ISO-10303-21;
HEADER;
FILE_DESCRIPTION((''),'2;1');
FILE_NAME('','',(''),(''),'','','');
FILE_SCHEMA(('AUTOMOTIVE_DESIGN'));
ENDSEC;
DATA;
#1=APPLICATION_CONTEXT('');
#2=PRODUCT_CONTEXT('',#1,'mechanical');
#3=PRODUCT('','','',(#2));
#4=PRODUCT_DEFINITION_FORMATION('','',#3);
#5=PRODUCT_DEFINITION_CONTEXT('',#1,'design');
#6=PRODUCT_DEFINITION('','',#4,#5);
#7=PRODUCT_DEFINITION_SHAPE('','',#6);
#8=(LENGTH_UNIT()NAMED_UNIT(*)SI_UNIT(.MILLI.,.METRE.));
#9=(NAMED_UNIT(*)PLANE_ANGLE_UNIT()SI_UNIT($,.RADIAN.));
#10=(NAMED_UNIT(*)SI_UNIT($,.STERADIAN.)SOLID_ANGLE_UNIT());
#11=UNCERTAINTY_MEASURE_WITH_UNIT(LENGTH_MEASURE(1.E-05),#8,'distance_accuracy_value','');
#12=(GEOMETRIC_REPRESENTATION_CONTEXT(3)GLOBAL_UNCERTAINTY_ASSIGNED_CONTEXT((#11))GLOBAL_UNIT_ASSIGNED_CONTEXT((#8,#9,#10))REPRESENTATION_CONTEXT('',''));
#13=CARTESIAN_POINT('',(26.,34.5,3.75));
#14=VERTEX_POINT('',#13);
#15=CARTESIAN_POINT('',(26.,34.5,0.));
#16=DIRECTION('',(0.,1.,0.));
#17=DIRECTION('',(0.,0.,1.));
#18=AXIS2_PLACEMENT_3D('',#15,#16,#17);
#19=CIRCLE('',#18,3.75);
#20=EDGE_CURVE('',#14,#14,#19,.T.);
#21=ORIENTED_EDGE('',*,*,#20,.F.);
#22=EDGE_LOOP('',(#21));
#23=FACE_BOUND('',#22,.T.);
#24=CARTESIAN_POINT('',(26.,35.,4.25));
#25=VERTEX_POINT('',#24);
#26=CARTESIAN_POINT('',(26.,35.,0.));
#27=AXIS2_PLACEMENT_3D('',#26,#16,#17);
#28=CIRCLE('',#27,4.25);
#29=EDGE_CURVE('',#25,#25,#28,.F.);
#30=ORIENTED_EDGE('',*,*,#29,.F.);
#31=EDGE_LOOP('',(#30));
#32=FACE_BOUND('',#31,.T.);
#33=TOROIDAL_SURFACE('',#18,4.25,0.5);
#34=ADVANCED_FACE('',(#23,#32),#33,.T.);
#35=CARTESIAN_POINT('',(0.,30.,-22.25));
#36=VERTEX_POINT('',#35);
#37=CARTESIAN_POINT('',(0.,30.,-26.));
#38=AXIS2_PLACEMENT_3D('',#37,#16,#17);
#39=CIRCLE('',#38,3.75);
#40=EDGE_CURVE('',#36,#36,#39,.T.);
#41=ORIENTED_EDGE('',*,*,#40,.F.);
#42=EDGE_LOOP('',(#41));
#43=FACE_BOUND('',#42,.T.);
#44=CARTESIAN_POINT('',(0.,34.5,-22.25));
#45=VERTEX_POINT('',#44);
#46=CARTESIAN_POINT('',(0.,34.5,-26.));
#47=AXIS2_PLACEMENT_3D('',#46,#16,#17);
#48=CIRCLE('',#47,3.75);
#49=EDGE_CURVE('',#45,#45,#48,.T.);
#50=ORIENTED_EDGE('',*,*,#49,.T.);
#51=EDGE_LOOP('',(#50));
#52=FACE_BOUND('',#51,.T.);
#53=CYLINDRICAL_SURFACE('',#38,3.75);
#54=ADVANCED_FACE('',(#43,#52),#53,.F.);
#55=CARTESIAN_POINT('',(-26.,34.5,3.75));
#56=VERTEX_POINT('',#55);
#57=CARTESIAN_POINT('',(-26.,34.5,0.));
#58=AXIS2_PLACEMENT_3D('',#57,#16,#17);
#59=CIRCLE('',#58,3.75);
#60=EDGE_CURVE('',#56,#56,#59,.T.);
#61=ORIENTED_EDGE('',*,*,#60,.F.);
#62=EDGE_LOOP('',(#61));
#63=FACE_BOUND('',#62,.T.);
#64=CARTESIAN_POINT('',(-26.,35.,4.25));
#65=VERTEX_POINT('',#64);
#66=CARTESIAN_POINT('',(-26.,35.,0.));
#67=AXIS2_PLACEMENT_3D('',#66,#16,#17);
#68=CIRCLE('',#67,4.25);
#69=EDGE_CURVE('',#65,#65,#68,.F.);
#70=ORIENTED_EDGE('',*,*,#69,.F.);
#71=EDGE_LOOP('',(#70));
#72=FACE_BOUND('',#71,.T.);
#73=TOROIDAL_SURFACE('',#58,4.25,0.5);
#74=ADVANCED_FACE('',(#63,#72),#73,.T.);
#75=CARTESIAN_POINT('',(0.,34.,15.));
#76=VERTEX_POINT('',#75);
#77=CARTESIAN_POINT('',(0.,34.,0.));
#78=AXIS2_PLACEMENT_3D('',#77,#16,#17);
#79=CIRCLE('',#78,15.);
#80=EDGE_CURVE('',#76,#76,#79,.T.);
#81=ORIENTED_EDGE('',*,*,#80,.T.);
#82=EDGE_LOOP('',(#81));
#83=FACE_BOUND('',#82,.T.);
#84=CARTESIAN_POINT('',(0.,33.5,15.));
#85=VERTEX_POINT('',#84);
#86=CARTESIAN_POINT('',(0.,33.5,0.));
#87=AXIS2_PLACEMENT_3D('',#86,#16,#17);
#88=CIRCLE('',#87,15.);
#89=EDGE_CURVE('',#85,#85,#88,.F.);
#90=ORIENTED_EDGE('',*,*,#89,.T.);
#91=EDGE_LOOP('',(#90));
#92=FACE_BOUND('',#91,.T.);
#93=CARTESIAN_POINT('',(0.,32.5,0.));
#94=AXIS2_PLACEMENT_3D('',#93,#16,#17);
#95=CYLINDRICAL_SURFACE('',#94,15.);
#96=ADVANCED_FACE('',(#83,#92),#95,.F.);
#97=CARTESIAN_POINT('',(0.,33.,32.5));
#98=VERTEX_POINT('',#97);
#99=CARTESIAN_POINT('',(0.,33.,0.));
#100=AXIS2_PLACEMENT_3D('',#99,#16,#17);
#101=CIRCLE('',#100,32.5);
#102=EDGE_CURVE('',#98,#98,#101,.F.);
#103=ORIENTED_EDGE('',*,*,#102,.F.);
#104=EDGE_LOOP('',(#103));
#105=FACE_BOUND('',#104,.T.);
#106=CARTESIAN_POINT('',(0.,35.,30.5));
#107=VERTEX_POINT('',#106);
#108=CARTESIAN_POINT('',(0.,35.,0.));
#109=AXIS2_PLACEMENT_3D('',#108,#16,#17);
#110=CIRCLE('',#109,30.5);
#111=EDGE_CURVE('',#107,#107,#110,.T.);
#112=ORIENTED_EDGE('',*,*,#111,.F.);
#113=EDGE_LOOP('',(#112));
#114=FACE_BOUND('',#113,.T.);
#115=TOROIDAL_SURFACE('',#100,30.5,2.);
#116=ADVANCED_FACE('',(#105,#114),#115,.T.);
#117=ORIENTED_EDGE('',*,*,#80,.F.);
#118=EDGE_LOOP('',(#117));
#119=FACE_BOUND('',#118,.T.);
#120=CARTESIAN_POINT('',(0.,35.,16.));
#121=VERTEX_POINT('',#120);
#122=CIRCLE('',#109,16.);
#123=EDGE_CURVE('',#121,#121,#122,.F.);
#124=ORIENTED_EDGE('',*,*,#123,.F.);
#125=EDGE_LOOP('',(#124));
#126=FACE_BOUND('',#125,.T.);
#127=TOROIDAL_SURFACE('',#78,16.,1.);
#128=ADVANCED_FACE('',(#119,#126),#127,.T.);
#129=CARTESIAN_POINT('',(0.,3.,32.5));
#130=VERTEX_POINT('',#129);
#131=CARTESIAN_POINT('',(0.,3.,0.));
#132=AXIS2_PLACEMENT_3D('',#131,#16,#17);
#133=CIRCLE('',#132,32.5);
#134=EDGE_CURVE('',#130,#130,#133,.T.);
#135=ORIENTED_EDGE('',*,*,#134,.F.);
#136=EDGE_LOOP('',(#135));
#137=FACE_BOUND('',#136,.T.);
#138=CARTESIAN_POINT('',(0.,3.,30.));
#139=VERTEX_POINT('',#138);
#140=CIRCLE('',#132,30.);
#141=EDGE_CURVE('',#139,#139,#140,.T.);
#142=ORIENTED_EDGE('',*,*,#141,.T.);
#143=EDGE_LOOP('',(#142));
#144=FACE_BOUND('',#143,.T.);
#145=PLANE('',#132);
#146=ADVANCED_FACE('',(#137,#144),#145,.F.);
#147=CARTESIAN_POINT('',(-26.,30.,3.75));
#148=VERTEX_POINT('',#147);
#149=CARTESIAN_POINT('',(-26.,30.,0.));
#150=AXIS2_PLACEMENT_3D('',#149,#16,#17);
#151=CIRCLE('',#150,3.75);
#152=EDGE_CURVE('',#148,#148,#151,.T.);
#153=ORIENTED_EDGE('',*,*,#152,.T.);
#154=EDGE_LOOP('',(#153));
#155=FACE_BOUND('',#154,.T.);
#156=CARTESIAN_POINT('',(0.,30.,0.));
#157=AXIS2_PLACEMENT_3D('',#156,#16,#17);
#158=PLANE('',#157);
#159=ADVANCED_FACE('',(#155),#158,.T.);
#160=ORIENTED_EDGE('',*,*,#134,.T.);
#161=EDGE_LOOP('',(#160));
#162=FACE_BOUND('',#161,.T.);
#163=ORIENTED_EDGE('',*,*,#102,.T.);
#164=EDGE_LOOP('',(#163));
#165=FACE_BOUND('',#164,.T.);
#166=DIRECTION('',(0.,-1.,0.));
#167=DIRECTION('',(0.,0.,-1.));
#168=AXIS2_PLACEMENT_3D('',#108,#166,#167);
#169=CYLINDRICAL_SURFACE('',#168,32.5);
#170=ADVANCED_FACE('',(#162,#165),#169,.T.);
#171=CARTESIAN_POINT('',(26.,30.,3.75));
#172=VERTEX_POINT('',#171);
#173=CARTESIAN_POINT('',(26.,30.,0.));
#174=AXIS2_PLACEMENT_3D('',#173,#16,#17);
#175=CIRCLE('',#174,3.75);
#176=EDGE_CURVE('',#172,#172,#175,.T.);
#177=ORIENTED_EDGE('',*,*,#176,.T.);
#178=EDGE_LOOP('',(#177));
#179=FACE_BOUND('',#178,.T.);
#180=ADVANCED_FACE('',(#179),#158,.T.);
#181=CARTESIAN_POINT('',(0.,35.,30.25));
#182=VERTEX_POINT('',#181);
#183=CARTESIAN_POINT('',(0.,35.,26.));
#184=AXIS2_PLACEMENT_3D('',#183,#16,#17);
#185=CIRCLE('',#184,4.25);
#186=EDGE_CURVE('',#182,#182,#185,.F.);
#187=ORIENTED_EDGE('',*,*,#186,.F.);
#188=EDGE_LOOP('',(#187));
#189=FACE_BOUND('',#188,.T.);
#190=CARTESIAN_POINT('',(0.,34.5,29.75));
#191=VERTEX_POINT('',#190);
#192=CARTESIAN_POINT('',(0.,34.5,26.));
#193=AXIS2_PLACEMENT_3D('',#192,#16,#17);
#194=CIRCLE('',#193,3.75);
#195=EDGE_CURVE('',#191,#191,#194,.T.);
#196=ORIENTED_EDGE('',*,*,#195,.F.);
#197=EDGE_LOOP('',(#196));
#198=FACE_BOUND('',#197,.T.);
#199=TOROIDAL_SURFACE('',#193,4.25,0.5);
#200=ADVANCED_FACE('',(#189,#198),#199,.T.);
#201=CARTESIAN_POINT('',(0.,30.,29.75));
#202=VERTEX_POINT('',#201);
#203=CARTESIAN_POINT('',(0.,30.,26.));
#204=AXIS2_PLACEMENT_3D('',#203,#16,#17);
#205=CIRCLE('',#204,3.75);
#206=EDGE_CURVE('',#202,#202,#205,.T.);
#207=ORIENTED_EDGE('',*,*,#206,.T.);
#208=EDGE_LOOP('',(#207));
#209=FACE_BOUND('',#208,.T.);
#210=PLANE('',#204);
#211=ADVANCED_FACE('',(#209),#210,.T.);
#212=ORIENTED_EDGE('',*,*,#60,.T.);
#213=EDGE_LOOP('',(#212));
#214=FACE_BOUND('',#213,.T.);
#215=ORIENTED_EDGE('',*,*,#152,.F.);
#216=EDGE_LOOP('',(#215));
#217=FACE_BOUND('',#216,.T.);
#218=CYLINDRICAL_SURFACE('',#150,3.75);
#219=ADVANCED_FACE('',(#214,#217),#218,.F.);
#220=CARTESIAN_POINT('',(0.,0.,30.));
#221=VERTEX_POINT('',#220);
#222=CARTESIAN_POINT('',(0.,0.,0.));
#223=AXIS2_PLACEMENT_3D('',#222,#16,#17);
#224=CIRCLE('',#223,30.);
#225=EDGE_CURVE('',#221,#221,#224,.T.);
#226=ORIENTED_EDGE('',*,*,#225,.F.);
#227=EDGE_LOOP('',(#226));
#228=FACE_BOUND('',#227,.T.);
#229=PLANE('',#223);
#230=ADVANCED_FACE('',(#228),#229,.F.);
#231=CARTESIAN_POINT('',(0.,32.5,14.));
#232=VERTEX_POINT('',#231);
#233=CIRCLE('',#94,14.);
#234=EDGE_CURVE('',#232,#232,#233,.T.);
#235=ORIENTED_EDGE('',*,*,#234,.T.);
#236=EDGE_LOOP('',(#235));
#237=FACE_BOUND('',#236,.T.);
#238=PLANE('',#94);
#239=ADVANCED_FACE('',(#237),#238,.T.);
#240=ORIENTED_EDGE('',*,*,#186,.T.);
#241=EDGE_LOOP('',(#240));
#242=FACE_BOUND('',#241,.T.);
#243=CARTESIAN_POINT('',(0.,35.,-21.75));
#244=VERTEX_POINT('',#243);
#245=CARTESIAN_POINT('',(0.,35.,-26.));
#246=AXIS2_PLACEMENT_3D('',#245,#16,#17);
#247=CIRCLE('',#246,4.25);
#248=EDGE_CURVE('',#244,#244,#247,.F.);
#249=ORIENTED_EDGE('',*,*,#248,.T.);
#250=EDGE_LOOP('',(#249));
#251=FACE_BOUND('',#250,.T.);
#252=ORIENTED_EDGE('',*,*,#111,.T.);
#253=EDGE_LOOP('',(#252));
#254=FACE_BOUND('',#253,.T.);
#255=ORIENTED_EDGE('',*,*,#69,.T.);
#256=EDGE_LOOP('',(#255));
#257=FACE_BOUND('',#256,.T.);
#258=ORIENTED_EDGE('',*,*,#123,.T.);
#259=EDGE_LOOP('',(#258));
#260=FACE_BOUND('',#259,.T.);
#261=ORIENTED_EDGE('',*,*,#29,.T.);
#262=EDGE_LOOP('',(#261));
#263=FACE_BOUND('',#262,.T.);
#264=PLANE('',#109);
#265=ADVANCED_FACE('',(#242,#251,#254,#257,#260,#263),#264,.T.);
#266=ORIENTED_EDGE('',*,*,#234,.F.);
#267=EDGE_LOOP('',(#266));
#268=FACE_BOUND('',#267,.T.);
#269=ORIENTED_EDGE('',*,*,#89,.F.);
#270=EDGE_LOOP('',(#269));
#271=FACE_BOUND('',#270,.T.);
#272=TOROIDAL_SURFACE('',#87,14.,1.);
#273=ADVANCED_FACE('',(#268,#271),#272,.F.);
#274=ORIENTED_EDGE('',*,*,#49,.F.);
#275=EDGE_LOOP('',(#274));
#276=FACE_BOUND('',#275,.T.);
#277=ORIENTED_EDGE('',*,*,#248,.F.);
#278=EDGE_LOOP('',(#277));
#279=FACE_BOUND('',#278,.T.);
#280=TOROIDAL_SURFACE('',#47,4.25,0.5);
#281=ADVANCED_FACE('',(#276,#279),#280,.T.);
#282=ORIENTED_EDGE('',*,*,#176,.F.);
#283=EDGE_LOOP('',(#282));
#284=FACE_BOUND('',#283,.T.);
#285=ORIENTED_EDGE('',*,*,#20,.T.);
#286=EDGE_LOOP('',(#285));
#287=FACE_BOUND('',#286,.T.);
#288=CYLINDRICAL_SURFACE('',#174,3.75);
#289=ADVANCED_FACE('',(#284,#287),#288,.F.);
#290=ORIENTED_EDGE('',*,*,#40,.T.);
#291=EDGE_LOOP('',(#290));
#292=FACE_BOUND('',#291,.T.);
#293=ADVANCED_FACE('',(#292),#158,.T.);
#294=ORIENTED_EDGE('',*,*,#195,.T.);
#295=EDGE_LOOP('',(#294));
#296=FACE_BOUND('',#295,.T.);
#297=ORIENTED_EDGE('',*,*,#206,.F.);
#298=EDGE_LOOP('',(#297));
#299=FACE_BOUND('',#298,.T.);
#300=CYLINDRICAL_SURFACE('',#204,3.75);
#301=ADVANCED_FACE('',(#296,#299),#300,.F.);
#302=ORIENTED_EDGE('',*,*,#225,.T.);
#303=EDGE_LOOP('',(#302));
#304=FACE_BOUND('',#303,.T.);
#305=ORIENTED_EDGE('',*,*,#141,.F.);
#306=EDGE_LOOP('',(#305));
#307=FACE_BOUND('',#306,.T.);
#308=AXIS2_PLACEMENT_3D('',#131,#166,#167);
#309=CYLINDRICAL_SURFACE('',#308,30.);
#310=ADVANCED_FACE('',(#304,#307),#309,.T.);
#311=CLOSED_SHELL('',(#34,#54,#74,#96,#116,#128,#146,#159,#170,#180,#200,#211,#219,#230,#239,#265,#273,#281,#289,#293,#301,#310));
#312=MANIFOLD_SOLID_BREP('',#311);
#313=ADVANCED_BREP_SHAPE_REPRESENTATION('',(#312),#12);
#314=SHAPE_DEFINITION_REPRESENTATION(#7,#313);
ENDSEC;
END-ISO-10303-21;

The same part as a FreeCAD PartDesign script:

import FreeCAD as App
import Part
import Sketcher

V = App.Vector


def edges_at(feature, points):
    """Names of the edges that pass closest to the given points."""
    edges = feature.Shape.Edges
    near = lambda p: min(range(len(edges)), key=lambda i: edges[i].distToShape(Part.Vertex(*p))[0])
    return sorted({f"Edge{near(p) + 1}" for p in points})

doc = App.newDocument("Part")
params = doc.addObject("Spreadsheet::Sheet", "Params")
for row, (alias, value) in enumerate([
    ("sketch1_diameter", "60 mm"),
    ("pad1_length", "3 mm"),
    ("sketch2_diameter", "65 mm"),
    ("pad2_length", "32 mm"),
    ("sketch3_diameter", "30 mm"),
    ("pocket1_length", "2.5 mm"),
    ("sketch4_diameter", "7.5 mm"),
    ("pocket2_length", "5 mm"),
    ("fillet_radius", "1 mm"),
    ("fillet2_radius", "1 mm"),
    ("fillet3_radius", "2 mm"),
    ("fillet4_radius", "0.5 mm"),
], start=1):
    params.set(f"A{row}", alias)
    params.set(f"B{row}", "=" + value)
    params.setAlias(f"B{row}", alias)

body = doc.addObject("PartDesign::Body", "Body")

# Sketch on XZ plane
sketch1 = body.newObject("Sketcher::SketchObject", "Sketch")
sketch1.AttachmentSupport = (doc.getObject("XZ_Plane"), [""])
sketch1.MapMode = "FlatFace"
sketch1.addGeometry(Part.Circle(V(0, 0, 0), V(0, 0, 1), 30), False)
sketch1.addConstraint(Sketcher.Constraint("Coincident", 0, 3, -1, 1))
sketch1.addConstraint(Sketcher.Constraint("Diameter", 0, 60.0))
sketch1.setExpression("Constraints[1]", "Params.sketch1_diameter")
pad1 = body.newObject("PartDesign::Pad", "Pad")
pad1.Profile = sketch1
pad1.setExpression("Length", "Params.pad1_length")
pad1.Reversed = True

# Sketch on XZ plane
sketch2 = body.newObject("Sketcher::SketchObject", "Sketch001")
sketch2.AttachmentSupport = (doc.getObject("XZ_Plane"), [""])
sketch2.MapMode = "FlatFace"
sketch2.AttachmentOffset = App.Placement(V(0, 0, -3), App.Rotation())
sketch2.addGeometry(Part.Circle(V(0, 0, 0), V(0, 0, 1), 32), False)
sketch2.addConstraint(Sketcher.Constraint("Coincident", 0, 3, -1, 1))
sketch2.addConstraint(Sketcher.Constraint("Diameter", 0, 65.0))
sketch2.setExpression("Constraints[1]", "Params.sketch2_diameter")
pad2 = body.newObject("PartDesign::Pad", "Pad001")
pad2.Profile = sketch2
pad2.setExpression("Length", "Params.pad2_length")
pad2.Reversed = True

# Sketch on XZ plane
sketch3 = body.newObject("Sketcher::SketchObject", "Sketch002")
sketch3.AttachmentSupport = (doc.getObject("XZ_Plane"), [""])
sketch3.MapMode = "FlatFace"
sketch3.AttachmentOffset = App.Placement(V(0, 0, -35), App.Rotation())
sketch3.addGeometry(Part.Circle(V(0, 0, 0), V(0, 0, 1), 15), False)
sketch3.addConstraint(Sketcher.Constraint("Coincident", 0, 3, -1, 1))
sketch3.addConstraint(Sketcher.Constraint("Diameter", 0, 30.0))
sketch3.setExpression("Constraints[1]", "Params.sketch3_diameter")
pocket1 = body.newObject("PartDesign::Pocket", "Pocket")
pocket1.Profile = sketch3
pocket1.setExpression("Length", "Params.pocket1_length")
pocket1.Reversed = True

# Sketch on XZ plane
sketch4 = body.newObject("Sketcher::SketchObject", "Sketch003")
sketch4.AttachmentSupport = (doc.getObject("XZ_Plane"), [""])
sketch4.MapMode = "FlatFace"
sketch4.AttachmentOffset = App.Placement(V(0, 0, -35), App.Rotation())
sketch4.addGeometry(Part.Circle(V(0, -26, 0), V(0, 0, 1), 3.8), False)
sketch4.addGeometry(Part.Circle(V(26, 0, 0), V(0, 0, 1), 3.8), False)
sketch4.addGeometry(Part.Circle(V(0, 26, 0), V(0, 0, 1), 3.8), False)
sketch4.addGeometry(Part.Circle(V(-26, 0, 0), V(0, 0, 1), 3.8), False)
sketch4.addConstraint(Sketcher.Constraint("Equal", 0, 1))
sketch4.addConstraint(Sketcher.Constraint("Equal", 1, 2))
sketch4.addConstraint(Sketcher.Constraint("Equal", 2, 3))
sketch4.addConstraint(Sketcher.Constraint("Symmetric", 0, 3, 2, 3, -1, 1))
sketch4.addConstraint(Sketcher.Constraint("Symmetric", 1, 3, 3, 3, -1, 1))
sketch4.addConstraint(Sketcher.Constraint("PointOnObject", 0, 3, -2))
sketch4.addConstraint(Sketcher.Constraint("PointOnObject", 1, 3, -1))
sketch4.addConstraint(Sketcher.Constraint("Diameter", 0, 7.5))
sketch4.addConstraint(Sketcher.Constraint("DistanceY", 0, 3, -1, 1, 26.0))
sketch4.addConstraint(Sketcher.Constraint("DistanceX", -1, 1, 1, 3, 26.0))
sketch4.setExpression("Constraints[7]", "Params.sketch4_diameter")
pocket2 = body.newObject("PartDesign::Pocket", "Pocket001")
pocket2.Profile = sketch4
pocket2.setExpression("Length", "Params.pocket2_length")
pocket2.Reversed = True
doc.recompute()

fillet = body.newObject("PartDesign::Fillet", "Fillet")
fillet.Base = (pocket2, edges_at(pocket2, [(-15, 32.5, 0)]))
fillet.setExpression("Radius", "Params.fillet_radius")
doc.recompute()

fillet2 = body.newObject("PartDesign::Fillet", "Fillet001")
fillet2.Base = (fillet, edges_at(fillet, [(-15, 35, 0)]))
fillet2.setExpression("Radius", "Params.fillet2_radius")
doc.recompute()

fillet3 = body.newObject("PartDesign::Fillet", "Fillet002")
fillet3.Base = (fillet2, edges_at(fillet2, [(-32.5, 35, 0)]))
fillet3.setExpression("Radius", "Params.fillet3_radius")
doc.recompute()

fillet4 = body.newObject("PartDesign::Fillet", "Fillet003")
fillet4.Base = (fillet3, edges_at(fillet3, [
    (-29.75, 35, 0),
    (-3.75, 35, -26),
    (22.25, 35, 0),
    (-3.75, 35, 26),
]))
fillet4.setExpression("Radius", "Params.fillet4_radius")

doc.recompute()
